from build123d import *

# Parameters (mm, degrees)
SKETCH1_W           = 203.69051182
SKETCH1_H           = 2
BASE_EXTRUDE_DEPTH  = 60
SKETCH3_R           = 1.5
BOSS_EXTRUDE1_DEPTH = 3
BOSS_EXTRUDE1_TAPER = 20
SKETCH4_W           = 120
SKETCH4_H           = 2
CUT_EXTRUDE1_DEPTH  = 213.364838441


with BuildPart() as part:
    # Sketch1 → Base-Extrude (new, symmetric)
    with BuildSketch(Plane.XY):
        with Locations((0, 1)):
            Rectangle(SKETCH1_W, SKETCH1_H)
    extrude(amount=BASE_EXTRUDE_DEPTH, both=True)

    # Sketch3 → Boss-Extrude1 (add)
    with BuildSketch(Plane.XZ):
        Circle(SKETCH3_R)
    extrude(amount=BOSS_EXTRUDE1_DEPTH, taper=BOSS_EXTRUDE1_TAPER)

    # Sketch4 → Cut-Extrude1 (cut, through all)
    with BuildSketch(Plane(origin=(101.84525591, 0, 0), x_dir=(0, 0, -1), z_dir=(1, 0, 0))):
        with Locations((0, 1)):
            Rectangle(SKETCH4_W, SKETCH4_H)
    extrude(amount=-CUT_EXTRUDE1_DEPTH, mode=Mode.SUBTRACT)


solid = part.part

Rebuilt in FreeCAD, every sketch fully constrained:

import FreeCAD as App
import Part
import Sketcher

V = App.Vector
Q = App.Units.Quantity


def add_polygon(sketch, points):
    """Adds a closed chain of lines whose ends are joined by coincident constraints."""
    first, n = sketch.GeometryCount, len(points)
    for a, b in zip(points, points[1:] + points[:1]):
        sketch.addGeometry(Part.LineSegment(App.Vector(*a, 0), App.Vector(*b, 0)), False)
    for i in range(n):
        sketch.addConstraint(Sketcher.Constraint("Coincident", first + i, 2, first + (i + 1) % n, 1))

doc = App.newDocument("Part")
body = doc.addObject("PartDesign::Body", "Body")

sketch1 = body.newObject("Sketcher::SketchObject", "Sketch")
sketch1.AttachmentSupport = (doc.getObject("XY_Plane"), [""])
sketch1.MapMode = "FlatFace"
add_polygon(sketch1, [(-101.8, 2), (-101.8, 0), (101.8, 0), (101.8, 2)])
sketch1.addConstraint([
    Sketcher.Constraint("Vertical", 0),
    Sketcher.Constraint("Horizontal", 1),
    Sketcher.Constraint("Vertical", 2),
    Sketcher.Constraint("Horizontal", 3),
    Sketcher.Constraint("Symmetric", 0, 2, 1, 2, -1, 1),
    Sketcher.Constraint("DistanceY", 0, 2, 0, 1, Q("2 mm")),
    Sketcher.Constraint("DistanceX", 1, 1, 1, 2, Q("203.690512 mm")),
])
pad1 = body.newObject("PartDesign::Pad", "Pad")
pad1.Profile = sketch1
pad1.Length = 120
pad1.Midplane = True

sketch2 = body.newObject("Sketcher::SketchObject", "Sketch001")
sketch2.AttachmentSupport = (doc.getObject("XZ_Plane"), [""])
sketch2.MapMode = "FlatFace"
sketch2.addGeometry(Part.Circle(V(0, 0, 0), V(0, 0, 1), 1.5), False)
sketch2.addConstraint([
    Sketcher.Constraint("Coincident", 0, 3, -1, 1),
    Sketcher.Constraint("Diameter", 0, Q("3 mm")),
])
pad2 = body.newObject("PartDesign::Pad", "Pad001")
pad2.Profile = sketch2
pad2.Length = 3
pad2.TaperAngle = -20

sketch3 = body.newObject("Sketcher::SketchObject", "Sketch002")
sketch3.AttachmentSupport = (doc.getObject("YZ_Plane"), [""])
sketch3.MapMode = "FlatFace"
sketch3.AttachmentOffset = App.Placement(V(0, 0, 101.845256), App.Rotation())
add_polygon(sketch3, [(2, 60), (0, 60), (0, -60), (2, -60)])
sketch3.addConstraint([
    Sketcher.Constraint("Horizontal", 0),
    Sketcher.Constraint("Vertical", 1),
    Sketcher.Constraint("Horizontal", 2),
    Sketcher.Constraint("Vertical", 3),
    Sketcher.Constraint("Symmetric", 0, 2, 1, 2, -1, 1),
    Sketcher.Constraint("DistanceX", 0, 2, 0, 1, Q("2 mm")),
    Sketcher.Constraint("DistanceY", 1, 2, 1, 1, Q("120 mm")),
])
pocket1 = body.newObject("PartDesign::Pocket", "Pocket")
pocket1.Profile = sketch3
pocket1.Type = "ThroughAll"

doc.recompute()
